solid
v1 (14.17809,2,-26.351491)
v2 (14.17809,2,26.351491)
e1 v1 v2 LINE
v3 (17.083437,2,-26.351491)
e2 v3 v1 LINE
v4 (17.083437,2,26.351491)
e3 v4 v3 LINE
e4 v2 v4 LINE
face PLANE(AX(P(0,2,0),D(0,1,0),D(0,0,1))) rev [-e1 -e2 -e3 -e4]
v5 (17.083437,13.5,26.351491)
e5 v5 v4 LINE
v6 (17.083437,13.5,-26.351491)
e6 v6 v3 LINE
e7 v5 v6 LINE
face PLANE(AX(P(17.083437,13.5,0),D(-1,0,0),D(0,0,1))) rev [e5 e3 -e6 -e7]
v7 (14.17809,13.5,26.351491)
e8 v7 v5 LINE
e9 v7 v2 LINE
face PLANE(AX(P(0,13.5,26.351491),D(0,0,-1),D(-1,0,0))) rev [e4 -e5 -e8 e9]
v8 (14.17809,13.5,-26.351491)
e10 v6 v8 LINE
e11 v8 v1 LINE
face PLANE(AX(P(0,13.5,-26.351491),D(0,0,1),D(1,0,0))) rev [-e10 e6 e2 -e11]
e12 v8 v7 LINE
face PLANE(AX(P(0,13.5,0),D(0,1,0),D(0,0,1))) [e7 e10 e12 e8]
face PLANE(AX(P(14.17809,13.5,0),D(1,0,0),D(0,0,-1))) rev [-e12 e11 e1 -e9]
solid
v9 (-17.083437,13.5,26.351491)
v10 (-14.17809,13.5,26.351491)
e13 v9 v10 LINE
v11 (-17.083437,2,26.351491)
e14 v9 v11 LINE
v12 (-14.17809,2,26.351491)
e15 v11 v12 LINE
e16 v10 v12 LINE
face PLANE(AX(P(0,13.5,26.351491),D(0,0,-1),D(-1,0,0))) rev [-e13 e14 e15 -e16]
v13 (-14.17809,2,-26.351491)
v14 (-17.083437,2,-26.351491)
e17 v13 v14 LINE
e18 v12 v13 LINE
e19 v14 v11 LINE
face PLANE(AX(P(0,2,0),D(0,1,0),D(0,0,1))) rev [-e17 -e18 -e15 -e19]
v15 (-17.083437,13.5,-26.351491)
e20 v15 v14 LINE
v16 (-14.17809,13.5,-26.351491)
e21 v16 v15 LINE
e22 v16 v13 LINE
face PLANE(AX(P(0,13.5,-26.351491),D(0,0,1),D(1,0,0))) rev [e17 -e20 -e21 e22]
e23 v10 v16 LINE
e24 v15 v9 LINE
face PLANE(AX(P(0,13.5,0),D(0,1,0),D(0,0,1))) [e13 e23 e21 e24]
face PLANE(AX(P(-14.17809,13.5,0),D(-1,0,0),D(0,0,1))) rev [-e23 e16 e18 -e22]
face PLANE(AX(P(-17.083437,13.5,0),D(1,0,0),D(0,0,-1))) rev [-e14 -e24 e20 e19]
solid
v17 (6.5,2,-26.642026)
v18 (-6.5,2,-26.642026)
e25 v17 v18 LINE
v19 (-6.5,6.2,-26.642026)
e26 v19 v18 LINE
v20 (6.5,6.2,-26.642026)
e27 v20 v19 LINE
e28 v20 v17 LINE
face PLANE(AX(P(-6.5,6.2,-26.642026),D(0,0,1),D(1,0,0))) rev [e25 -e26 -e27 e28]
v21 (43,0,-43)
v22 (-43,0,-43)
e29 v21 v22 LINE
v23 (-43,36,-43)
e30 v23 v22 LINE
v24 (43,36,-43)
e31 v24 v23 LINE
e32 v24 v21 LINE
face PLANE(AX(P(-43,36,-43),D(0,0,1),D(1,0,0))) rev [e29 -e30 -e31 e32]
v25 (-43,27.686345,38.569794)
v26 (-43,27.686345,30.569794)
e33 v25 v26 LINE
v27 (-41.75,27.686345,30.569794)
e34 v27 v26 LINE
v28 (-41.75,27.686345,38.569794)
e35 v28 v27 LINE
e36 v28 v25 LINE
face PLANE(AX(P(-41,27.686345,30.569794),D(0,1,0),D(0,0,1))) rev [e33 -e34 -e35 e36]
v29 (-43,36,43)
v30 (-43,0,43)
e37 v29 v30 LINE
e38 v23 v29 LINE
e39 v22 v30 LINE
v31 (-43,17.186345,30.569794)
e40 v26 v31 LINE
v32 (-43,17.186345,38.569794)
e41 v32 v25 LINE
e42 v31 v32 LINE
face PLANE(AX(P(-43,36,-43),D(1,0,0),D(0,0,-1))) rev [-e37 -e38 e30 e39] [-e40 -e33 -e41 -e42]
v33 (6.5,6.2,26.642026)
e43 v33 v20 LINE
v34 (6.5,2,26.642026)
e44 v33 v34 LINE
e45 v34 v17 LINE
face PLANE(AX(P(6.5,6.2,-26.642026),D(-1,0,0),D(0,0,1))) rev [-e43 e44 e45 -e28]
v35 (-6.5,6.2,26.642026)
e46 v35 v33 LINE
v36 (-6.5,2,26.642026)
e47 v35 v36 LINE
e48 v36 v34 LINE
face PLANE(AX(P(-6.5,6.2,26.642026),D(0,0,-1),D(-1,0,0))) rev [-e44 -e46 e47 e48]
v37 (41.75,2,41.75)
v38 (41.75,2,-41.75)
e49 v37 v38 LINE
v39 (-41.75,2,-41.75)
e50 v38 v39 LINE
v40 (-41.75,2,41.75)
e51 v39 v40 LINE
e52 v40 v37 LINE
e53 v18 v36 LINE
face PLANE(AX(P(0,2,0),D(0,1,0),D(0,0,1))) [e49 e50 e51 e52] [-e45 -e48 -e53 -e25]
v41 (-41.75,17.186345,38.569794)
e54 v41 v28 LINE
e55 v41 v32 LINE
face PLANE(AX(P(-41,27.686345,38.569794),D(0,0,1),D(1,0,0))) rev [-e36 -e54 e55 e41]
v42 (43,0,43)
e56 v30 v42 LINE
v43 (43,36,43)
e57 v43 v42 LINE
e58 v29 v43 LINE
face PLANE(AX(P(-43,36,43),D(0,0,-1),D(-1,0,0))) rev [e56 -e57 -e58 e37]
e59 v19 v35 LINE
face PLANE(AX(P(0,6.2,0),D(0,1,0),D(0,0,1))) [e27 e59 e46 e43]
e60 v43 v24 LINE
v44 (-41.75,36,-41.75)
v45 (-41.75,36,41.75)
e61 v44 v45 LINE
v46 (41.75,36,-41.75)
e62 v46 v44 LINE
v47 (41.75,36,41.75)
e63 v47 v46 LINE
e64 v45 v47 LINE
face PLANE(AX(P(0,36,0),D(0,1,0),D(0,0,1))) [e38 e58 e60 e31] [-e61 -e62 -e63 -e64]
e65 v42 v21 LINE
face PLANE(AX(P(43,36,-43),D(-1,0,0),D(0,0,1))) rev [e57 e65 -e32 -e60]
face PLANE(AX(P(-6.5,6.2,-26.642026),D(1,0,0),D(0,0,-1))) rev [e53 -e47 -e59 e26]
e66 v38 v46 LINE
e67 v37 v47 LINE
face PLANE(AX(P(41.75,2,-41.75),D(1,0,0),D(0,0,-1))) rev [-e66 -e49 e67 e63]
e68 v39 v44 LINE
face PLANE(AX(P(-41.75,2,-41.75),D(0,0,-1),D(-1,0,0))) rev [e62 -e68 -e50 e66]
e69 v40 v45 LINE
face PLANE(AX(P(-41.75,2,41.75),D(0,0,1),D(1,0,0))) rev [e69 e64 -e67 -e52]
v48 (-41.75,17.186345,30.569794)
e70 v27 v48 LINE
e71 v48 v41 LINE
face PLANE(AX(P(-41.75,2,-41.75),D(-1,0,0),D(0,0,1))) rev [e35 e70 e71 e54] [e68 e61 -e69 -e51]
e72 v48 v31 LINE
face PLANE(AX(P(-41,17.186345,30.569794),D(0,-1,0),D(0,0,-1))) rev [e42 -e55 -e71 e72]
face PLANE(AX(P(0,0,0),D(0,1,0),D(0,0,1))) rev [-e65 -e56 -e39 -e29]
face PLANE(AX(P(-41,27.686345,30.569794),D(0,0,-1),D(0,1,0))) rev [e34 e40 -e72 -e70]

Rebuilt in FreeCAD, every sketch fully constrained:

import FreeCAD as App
import Part
import Sketcher
from FreeCAD import Vector
Q = App.Units.Quantity


def add_polygon(sketch, points):
    """Adds a closed chain of lines whose ends are joined by coincident constraints."""
    first, n = sketch.GeometryCount, len(points)
    for a, b in zip(points, points[1:] + points[:1]):
        sketch.addGeometry(Part.LineSegment(App.Vector(*a, 0), App.Vector(*b, 0)), False)
    for i in range(n):
        sketch.addConstraint(Sketcher.Constraint("Coincident", first + i, 2, first + (i + 1) % n, 1))

doc = App.newDocument("Part")
body = doc.addObject("PartDesign::Body", "Body")

sketch1 = body.newObject("Sketcher::SketchObject", "Sketch")
sketch1.AttachmentSupport = (doc.getObject("XZ_Plane"), [""])
sketch1.MapMode = "FlatFace"
add_polygon(sketch1, [(-43, -43), (-43, 43), (43, 43), (43, -43)])
sketch1.addConstraint(Sketcher.Constraint("Vertical", 0))
sketch1.addConstraint(Sketcher.Constraint("Horizontal", 1))
sketch1.addConstraint(Sketcher.Constraint("Vertical", 2))
sketch1.addConstraint(Sketcher.Constraint("Horizontal", 3))
sketch1.addConstraint(Sketcher.Constraint("Symmetric", 0, 2, 2, 2, -1, 1))
sketch1.addConstraint(Sketcher.Constraint("Equal", 3, 0))
sketch1.addConstraint(Sketcher.Constraint("DistanceX", 1, 1, 1, 2, Q("86 mm")))
pad1 = body.newObject("PartDesign::Pad", "Pad")
pad1.Profile = sketch1
pad1.Length = 36
pad1.Reversed = True

sketch2 = body.newObject("Sketcher::SketchObject", "Sketch001")
sketch2.AttachmentSupport = (doc.getObject("XZ_Plane"), [""])
sketch2.MapMode = "FlatFace"
sketch2.AttachmentOffset = App.Placement(Vector(0, 0, -36), App.Rotation())
add_polygon(sketch2, [(-41.75, -41.75), (-41.75, 41.75), (41.75, 41.75), (41.75, -41.75)])
sketch2.addConstraint(Sketcher.Constraint("Vertical", 0))
sketch2.addConstraint(Sketcher.Constraint("Horizontal", 1))
sketch2.addConstraint(Sketcher.Constraint("Vertical", 2))
sketch2.addConstraint(Sketcher.Constraint("Horizontal", 3))
sketch2.addConstraint(Sketcher.Constraint("Symmetric", 0, 2, 2, 2, -1, 1))
sketch2.addConstraint(Sketcher.Constraint("Equal", 3, 0))
sketch2.addConstraint(Sketcher.Constraint("DistanceX", 1, 1, 1, 2, Q("83.5 mm")))
pocket1 = body.newObject("PartDesign::Pocket", "Pocket")
pocket1.Profile = sketch2
pocket1.Length = 34
pocket1.Reversed = True

sketch3 = body.newObject("Sketcher::SketchObject", "Sketch002")
sketch3.AttachmentSupport = (doc.getObject("XZ_Plane"), [""])
sketch3.MapMode = "FlatFace"
sketch3.AttachmentOffset = App.Placement(Vector(0, 0, -2), App.Rotation())
add_polygon(sketch3, [(-6.5, -26.642026), (-6.5, 26.642026), (6.5, 26.642026), (6.5, -26.642026)])
sketch3.addConstraint(Sketcher.Constraint("Vertical", 0))
sketch3.addConstraint(Sketcher.Constraint("Horizontal", 1))
sketch3.addConstraint(Sketcher.Constraint("Vertical", 2))
sketch3.addConstraint(Sketcher.Constraint("Horizontal", 3))
sketch3.addConstraint(Sketcher.Constraint("Symmetric", 0, 2, 2, 2, -1, 1))
sketch3.addConstraint(Sketcher.Constraint("DistanceX", 1, 1, 1, 2, Q("13 mm")))
sketch3.addConstraint(Sketcher.Constraint("DistanceY", 0, 1, 0, 2, Q("53.284052 mm")))
pad2 = body.newObject("PartDesign::Pad", "Pad001")
pad2.Profile = sketch3
pad2.Length = 4.2
pad2.Reversed = True

sketch4 = body.newObject("Sketcher::SketchObject", "Sketch003")
sketch4.AttachmentSupport = (doc.getObject("YZ_Plane"), [""])
sketch4.MapMode = "FlatFace"
sketch4.AttachmentOffset = App.Placement(Vector(0, 0, -43), App.Rotation())
add_polygon(sketch4, [(27.686345, 30.569794), (17.186345, 30.569794), (17.186345, 38.569794), (27.686345, 38.569794)])
sketch4.addConstraint(Sketcher.Constraint("Horizontal", 0))
sketch4.addConstraint(Sketcher.Constraint("Vertical", 1))
sketch4.addConstraint(Sketcher.Constraint("Horizontal", 2))
sketch4.addConstraint(Sketcher.Constraint("Vertical", 3))
sketch4.addConstraint(Sketcher.Constraint("DistanceY", 1, 1, 1, 2, Q("8 mm")))
sketch4.addConstraint(Sketcher.Constraint("DistanceX", 0, 2, 0, 1, Q("10.5 mm")))
sketch4.addConstraint(Sketcher.Constraint("DistanceX", -1, 1, 0, 2, Q("17.186345 mm")))
sketch4.addConstraint(Sketcher.Constraint("DistanceY", -1, 1, 0, 2, Q("30.569794 mm")))
pocket2 = body.newObject("PartDesign::Pocket", "Pocket001")
pocket2.Profile = sketch4
pocket2.Length = 2
pocket2.Reversed = True
body2 = doc.addObject("PartDesign::Body", "Body001")

sketch5 = body2.newObject("Sketcher::SketchObject", "Sketch004")
sketch5.AttachmentSupport = (doc.getObject("XZ_Plane001"), [""])
sketch5.MapMode = "FlatFace"
sketch5.AttachmentOffset = App.Placement(Vector(0, 0, -2), App.Rotation())
add_polygon(sketch5, [(14.17809, -26.351491), (14.17809, 26.351491), (17.083437, 26.351491), (17.083437, -26.351491)])
sketch5.addConstraint(Sketcher.Constraint("Vertical", 0))
sketch5.addConstraint(Sketcher.Constraint("Horizontal", 1))
sketch5.addConstraint(Sketcher.Constraint("Vertical", 2))
sketch5.addConstraint(Sketcher.Constraint("Horizontal", 3))
sketch5.addConstraint(Sketcher.Constraint("DistanceX", 1, 1, 1, 2, Q("2.905346 mm")))
sketch5.addConstraint(Sketcher.Constraint("DistanceY", 0, 1, 0, 2, Q("52.702983 mm")))
sketch5.addConstraint(Sketcher.Constraint("DistanceX", -1, 1, 0, 2, Q("14.17809 mm")))
sketch5.addConstraint(Sketcher.Constraint("DistanceY", -1, 1, 0, 2, Q("26.351491 mm")))
pad3 = body2.newObject("PartDesign::Pad", "Pad002")
pad3.Profile = sketch5
pad3.Length = 11.5
pad3.Reversed = True
body3 = doc.addObject("PartDesign::Body", "Body002")

sketch6 = body3.newObject("Sketcher::SketchObject", "Sketch005")
sketch6.AttachmentSupport = (doc.getObject("XZ_Plane002"), [""])
sketch6.MapMode = "FlatFace"
sketch6.AttachmentOffset = App.Placement(Vector(0, 0, -2), App.Rotation())
add_polygon(sketch6, [(-17.083437, -26.351491), (-17.083437, 26.351491), (-14.17809, 26.351491), (-14.17809, -26.351491)])
sketch6.addConstraint(Sketcher.Constraint("Vertical", 0))
sketch6.addConstraint(Sketcher.Constraint("Horizontal", 1))
sketch6.addConstraint(Sketcher.Constraint("Vertical", 2))
sketch6.addConstraint(Sketcher.Constraint("Horizontal", 3))
sketch6.addConstraint(Sketcher.Constraint("DistanceX", 1, 1, 1, 2, Q("2.905346 mm")))
sketch6.addConstraint(Sketcher.Constraint("DistanceY", 0, 1, 0, 2, Q("52.702983 mm")))
sketch6.addConstraint(Sketcher.Constraint("DistanceY", -1, 1, 0, 2, Q("26.351491 mm")))
sketch6.addConstraint(Sketcher.Constraint("DistanceX", 1, 2, -1, 1, Q("14.17809 mm")))
pad4 = body3.newObject("PartDesign::Pad", "Pad003")
pad4.Profile = sketch6
pad4.Length = 11.5
pad4.Reversed = True

doc.recompute()
